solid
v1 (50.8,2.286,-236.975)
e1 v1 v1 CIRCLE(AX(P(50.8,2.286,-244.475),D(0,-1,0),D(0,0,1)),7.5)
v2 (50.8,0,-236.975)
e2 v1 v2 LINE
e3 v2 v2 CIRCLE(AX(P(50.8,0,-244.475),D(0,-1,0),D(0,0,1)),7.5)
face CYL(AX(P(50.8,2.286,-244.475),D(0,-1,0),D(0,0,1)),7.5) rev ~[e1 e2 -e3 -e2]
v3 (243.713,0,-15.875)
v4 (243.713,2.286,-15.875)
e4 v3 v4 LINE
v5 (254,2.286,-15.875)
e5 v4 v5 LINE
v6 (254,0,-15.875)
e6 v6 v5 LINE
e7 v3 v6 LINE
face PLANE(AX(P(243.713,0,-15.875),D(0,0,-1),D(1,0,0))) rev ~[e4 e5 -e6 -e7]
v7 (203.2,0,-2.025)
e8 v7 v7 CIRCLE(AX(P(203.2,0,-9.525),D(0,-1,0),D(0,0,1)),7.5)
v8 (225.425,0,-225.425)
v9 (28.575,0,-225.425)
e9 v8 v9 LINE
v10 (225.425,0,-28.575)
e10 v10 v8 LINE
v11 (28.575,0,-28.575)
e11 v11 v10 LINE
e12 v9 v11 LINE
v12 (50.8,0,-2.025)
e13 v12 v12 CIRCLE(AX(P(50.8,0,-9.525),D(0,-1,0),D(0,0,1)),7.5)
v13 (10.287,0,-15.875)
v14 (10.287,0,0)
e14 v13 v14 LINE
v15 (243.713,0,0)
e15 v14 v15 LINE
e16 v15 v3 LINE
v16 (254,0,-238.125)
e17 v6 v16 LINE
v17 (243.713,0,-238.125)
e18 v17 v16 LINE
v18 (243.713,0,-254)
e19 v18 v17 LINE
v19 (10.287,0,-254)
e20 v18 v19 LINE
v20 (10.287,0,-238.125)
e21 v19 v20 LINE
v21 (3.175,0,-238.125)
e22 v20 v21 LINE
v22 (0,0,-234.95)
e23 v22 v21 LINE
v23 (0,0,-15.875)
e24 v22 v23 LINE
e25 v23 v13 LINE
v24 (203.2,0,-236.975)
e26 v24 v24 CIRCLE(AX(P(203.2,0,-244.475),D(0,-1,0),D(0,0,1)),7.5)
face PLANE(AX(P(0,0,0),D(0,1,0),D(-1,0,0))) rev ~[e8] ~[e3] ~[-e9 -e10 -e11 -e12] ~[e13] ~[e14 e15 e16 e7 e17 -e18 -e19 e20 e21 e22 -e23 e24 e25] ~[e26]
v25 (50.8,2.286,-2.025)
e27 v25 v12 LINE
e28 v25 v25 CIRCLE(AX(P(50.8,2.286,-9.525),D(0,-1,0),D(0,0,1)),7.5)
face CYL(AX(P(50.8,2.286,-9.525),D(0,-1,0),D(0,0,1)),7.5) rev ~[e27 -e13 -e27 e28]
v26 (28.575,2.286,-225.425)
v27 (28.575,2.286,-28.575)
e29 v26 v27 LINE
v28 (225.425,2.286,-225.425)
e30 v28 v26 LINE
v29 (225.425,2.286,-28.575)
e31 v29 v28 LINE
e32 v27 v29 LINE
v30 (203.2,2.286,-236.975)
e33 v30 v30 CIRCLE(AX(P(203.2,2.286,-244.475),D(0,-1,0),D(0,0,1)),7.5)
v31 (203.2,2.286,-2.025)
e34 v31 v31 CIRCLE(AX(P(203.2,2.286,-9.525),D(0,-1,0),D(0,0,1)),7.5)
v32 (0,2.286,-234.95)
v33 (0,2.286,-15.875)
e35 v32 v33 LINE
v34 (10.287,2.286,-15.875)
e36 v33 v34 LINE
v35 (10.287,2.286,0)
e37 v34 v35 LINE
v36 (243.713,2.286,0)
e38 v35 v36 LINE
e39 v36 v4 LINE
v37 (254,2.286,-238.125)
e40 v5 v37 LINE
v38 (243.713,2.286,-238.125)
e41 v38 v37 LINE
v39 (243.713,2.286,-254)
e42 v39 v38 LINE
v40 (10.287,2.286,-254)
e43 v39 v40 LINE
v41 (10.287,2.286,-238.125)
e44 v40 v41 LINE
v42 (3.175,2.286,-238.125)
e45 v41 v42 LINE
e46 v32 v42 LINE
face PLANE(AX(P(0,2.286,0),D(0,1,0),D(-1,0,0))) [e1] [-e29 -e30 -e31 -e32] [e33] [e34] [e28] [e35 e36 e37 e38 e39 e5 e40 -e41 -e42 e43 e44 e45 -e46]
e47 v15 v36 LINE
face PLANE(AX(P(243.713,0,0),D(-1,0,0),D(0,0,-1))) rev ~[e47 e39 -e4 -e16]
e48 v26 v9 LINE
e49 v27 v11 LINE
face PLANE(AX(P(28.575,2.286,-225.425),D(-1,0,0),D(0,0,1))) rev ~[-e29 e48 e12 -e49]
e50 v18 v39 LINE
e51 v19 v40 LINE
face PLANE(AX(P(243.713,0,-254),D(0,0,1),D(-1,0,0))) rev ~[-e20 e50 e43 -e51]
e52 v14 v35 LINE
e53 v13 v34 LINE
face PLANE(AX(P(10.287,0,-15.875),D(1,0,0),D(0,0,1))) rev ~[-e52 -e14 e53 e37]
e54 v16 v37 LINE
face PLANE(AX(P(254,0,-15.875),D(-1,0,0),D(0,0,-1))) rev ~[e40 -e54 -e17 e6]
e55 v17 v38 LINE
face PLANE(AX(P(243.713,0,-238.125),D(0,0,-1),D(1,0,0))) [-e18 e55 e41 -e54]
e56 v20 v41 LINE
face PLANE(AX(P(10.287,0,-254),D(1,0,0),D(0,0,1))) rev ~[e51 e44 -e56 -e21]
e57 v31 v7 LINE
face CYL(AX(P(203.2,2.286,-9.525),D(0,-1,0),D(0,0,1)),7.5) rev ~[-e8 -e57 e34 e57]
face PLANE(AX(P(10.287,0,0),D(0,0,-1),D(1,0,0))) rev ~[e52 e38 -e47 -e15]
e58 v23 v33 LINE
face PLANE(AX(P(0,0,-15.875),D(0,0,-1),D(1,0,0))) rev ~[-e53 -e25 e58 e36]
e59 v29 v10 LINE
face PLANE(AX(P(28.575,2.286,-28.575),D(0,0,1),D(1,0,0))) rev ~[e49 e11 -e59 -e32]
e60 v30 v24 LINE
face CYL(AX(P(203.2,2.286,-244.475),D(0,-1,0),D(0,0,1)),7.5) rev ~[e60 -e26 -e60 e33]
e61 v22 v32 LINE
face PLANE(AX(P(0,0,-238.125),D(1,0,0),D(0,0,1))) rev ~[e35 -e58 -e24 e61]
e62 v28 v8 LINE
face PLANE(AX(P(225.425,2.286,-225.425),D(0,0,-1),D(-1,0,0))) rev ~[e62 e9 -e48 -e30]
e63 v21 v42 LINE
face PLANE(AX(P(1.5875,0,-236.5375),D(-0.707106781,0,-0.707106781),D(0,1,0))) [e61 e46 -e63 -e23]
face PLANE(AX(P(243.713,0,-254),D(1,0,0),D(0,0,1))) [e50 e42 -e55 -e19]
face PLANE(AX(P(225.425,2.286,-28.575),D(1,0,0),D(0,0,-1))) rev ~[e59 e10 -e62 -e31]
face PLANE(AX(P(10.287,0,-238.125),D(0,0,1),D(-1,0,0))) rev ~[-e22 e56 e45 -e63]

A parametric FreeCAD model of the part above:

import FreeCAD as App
import Part
import Sketcher
Q = App.Units.Quantity


def edges_at(feature, points):
    """Names of the edges that pass closest to the given points."""
    edges = feature.Shape.Edges
    near = lambda p: min(range(len(edges)), key=lambda i: edges[i].distToShape(Part.Vertex(*p))[0])
    return sorted({f"Edge{near(p) + 1}" for p in points})

doc = App.newDocument("Part")
body = doc.addObject("PartDesign::Body", "Body")

# Sketch on XZ plane
sketch1 = doc.addObject("Sketcher::SketchObject", "Sketch")
body.addObject(sketch1)
sketch1.AttachmentSupport = (doc.XZ_Plane, [""])
sketch1.MapMode = "FlatFace"
sketch1.addGeometry(Part.LineSegment(App.Vector(10.287, -15.875, 0), App.Vector(10.287, 0, 0)), False)
sketch1.addGeometry(Part.LineSegment(App.Vector(10.287, 0, 0), App.Vector(243.713, 0, 0)), False)
sketch1.addGeometry(Part.LineSegment(App.Vector(243.713, 0, 0), App.Vector(243.713, -15.875, 0)), False)
sketch1.addGeometry(Part.LineSegment(App.Vector(243.713, -15.875, 0), App.Vector(254, -15.875, 0)), False)
sketch1.addGeometry(Part.LineSegment(App.Vector(254, -15.875, 0), App.Vector(254, -238.125, 0)), False)
sketch1.addGeometry(Part.LineSegment(App.Vector(254, -238.125, 0), App.Vector(243.713, -238.125, 0)), False)
sketch1.addGeometry(Part.LineSegment(App.Vector(243.713, -238.125, 0), App.Vector(243.713, -254, 0)), False)
sketch1.addGeometry(Part.LineSegment(App.Vector(243.713, -254, 0), App.Vector(10.287, -254, 0)), False)
sketch1.addGeometry(Part.LineSegment(App.Vector(10.287, -254, 0), App.Vector(10.287, -238.125, 0)), False)
sketch1.addGeometry(Part.LineSegment(App.Vector(10.287, -238.125, 0), App.Vector(0, -238.125, 0)), False)
sketch1.addGeometry(Part.LineSegment(App.Vector(0, -238.125, 0), App.Vector(0, -15.875, 0)), False)
sketch1.addGeometry(Part.LineSegment(App.Vector(0, -15.875, 0), App.Vector(10.287, -15.875, 0)), False)
sketch1.addConstraint(Sketcher.Constraint("Coincident", 0, 2, 1, 1))
sketch1.addConstraint(Sketcher.Constraint("Coincident", 1, 2, 2, 1))
sketch1.addConstraint(Sketcher.Constraint("Coincident", 2, 2, 3, 1))
sketch1.addConstraint(Sketcher.Constraint("Coincident", 3, 2, 4, 1))
sketch1.addConstraint(Sketcher.Constraint("Coincident", 4, 2, 5, 1))
sketch1.addConstraint(Sketcher.Constraint("Coincident", 5, 2, 6, 1))
sketch1.addConstraint(Sketcher.Constraint("Coincident", 6, 2, 7, 1))
sketch1.addConstraint(Sketcher.Constraint("Coincident", 7, 2, 8, 1))
sketch1.addConstraint(Sketcher.Constraint("Coincident", 8, 2, 9, 1))
sketch1.addConstraint(Sketcher.Constraint("Coincident", 9, 2, 10, 1))
sketch1.addConstraint(Sketcher.Constraint("Coincident", 10, 2, 11, 1))
sketch1.addConstraint(Sketcher.Constraint("Coincident", 11, 2, 0, 1))
sketch1.addConstraint(Sketcher.Constraint("Vertical", 0))
sketch1.addConstraint(Sketcher.Constraint("Horizontal", 1))
sketch1.addConstraint(Sketcher.Constraint("Vertical", 2))
sketch1.addConstraint(Sketcher.Constraint("Horizontal", 3))
sketch1.addConstraint(Sketcher.Constraint("Vertical", 4))
sketch1.addConstraint(Sketcher.Constraint("Horizontal", 5))
sketch1.addConstraint(Sketcher.Constraint("Vertical", 6))
sketch1.addConstraint(Sketcher.Constraint("Horizontal", 7))
sketch1.addConstraint(Sketcher.Constraint("Vertical", 8))
sketch1.addConstraint(Sketcher.Constraint("Horizontal", 9))
sketch1.addConstraint(Sketcher.Constraint("Vertical", 10))
sketch1.addConstraint(Sketcher.Constraint("Horizontal", 11))
sketch1.addConstraint(Sketcher.Constraint("PointOnObject", 0, 2, -1))
sketch1.addConstraint(Sketcher.Constraint("PointOnObject", 9, 2, -2))
sketch1.addConstraint(Sketcher.Constraint("Horizontal", 5, 2, 8, 2))
sketch1.addConstraint(Sketcher.Constraint("Horizontal", 3, 2, 10, 2))
sketch1.addConstraint(Sketcher.Constraint("Vertical", 2, 2, 5, 2))
sketch1.addConstraint(Sketcher.Constraint("Vertical", 0, 2, 7, 2))
sketch1.addConstraint(Sketcher.Constraint("Equal", 5, 9))
sketch1.addConstraint(Sketcher.Constraint("Equal", 2, 6))
sketch1.addConstraint(Sketcher.Constraint("DistanceX", -1, 1, 3, 2, Q("10 in")))
sketch1.addConstraint(Sketcher.Constraint("DistanceY", 6, 2, -1, 1, Q("10 in")))
sketch1.addConstraint(Sketcher.Constraint("DistanceX", 3, 1, 3, 2, Q("0.405 in")))
sketch1.addConstraint(Sketcher.Constraint("DistanceY", 0, 1, 0, 2, Q("0.625 in")))
pad1 = doc.addObject("PartDesign::Pad", "Pad")
body.addObject(pad1)
pad1.Profile = sketch1
pad1.Length = Q("0.09 in")
pad1.Reversed = True

# Sketch on XZ plane
sketch2 = doc.addObject("Sketcher::SketchObject", "Sketch001")
body.addObject(sketch2)
sketch2.AttachmentSupport = (doc.XZ_Plane, [""])
sketch2.MapMode = "FlatFace"
sketch2.AttachmentOffset = App.Placement(App.Vector(0, 0, -0.09 * 25.4), App.Rotation())
sketch2.addGeometry(Part.LineSegment(App.Vector(28.575, -225.425, 0), App.Vector(28.575, -28.575, 0)), False)
sketch2.addGeometry(Part.LineSegment(App.Vector(28.575, -28.575, 0), App.Vector(225.425, -28.575, 0)), False)
sketch2.addGeometry(Part.LineSegment(App.Vector(225.425, -28.575, 0), App.Vector(225.425, -225.425, 0)), False)
sketch2.addGeometry(Part.LineSegment(App.Vector(225.425, -225.425, 0), App.Vector(28.575, -225.425, 0)), False)
sketch2.addConstraint(Sketcher.Constraint("Coincident", 0, 2, 1, 1))
sketch2.addConstraint(Sketcher.Constraint("Coincident", 1, 2, 2, 1))
sketch2.addConstraint(Sketcher.Constraint("Coincident", 2, 2, 3, 1))
sketch2.addConstraint(Sketcher.Constraint("Coincident", 3, 2, 0, 1))
sketch2.addConstraint(Sketcher.Constraint("Vertical", 0))
sketch2.addConstraint(Sketcher.Constraint("Horizontal", 1))
sketch2.addConstraint(Sketcher.Constraint("Vertical", 2))
sketch2.addConstraint(Sketcher.Constraint("Horizontal", 3))
sketch2.addConstraint(Sketcher.Constraint("Equal", 3, 0))
sketch2.addConstraint(Sketcher.Constraint("DistanceX", 1, 1, 1, 2, Q("7.75 in")))
sketch2.addConstraint(Sketcher.Constraint("DistanceX", -1, 1, 0, 2, Q("1.125 in")))
sketch2.addConstraint(Sketcher.Constraint("DistanceY", 0, 2, -1, 1, Q("1.125 in")))
pocket1 = doc.addObject("PartDesign::Pocket", "Pocket")
body.addObject(pocket1)
pocket1.Profile = sketch2
pocket1.Type = "ThroughAll"
pocket1.Reversed = True

# Sketch on XZ plane
sketch3 = doc.addObject("Sketcher::SketchObject", "Sketch002")
body.addObject(sketch3)
sketch3.AttachmentSupport = (doc.XZ_Plane, [""])
sketch3.MapMode = "FlatFace"
sketch3.AttachmentOffset = App.Placement(App.Vector(0, 0, -0.09 * 25.4), App.Rotation())
sketch3.addGeometry(Part.Circle(App.Vector(50.8, -9.525, 0), App.Vector(0, 0, 1), 7.5), False)
sketch3.addGeometry(Part.Circle(App.Vector(50.8, -244.475, 0), App.Vector(0, 0, 1), 7.5), False)
sketch3.addGeometry(Part.Circle(App.Vector(203.2, -244.475, 0), App.Vector(0, 0, 1), 7.5), False)
sketch3.addGeometry(Part.Circle(App.Vector(203.2, -9.525, 0), App.Vector(0, 0, 1), 7.5), False)
sketch3.addConstraint(Sketcher.Constraint("Equal", 0, 1))
sketch3.addConstraint(Sketcher.Constraint("Equal", 1, 2))
sketch3.addConstraint(Sketcher.Constraint("Equal", 2, 3))
sketch3.addConstraint(Sketcher.Constraint("Horizontal", 1, 3, 2, 3))
sketch3.addConstraint(Sketcher.Constraint("Horizontal", 0, 3, 3, 3))
sketch3.addConstraint(Sketcher.Constraint("Vertical", 0, 3, 1, 3))
sketch3.addConstraint(Sketcher.Constraint("Vertical", 2, 3, 3, 3))
sketch3.addConstraint(Sketcher.Constraint("DistanceX", -1, 1, 0, 3, Q("2 in")))
sketch3.addConstraint(Sketcher.Constraint("DistanceX", -1, 1, 2, 3, Q("8 in")))
sketch3.addConstraint(Sketcher.Constraint("Diameter", 0, Q("15 mm")))
sketch3.addConstraint(Sketcher.Constraint("DistanceY", 1, 3, 0, 3, Q("9.25 in")))
sketch3.addConstraint(Sketcher.Constraint("DistanceY", 0, 3, -1, 1, Q("0.375 in")))
doc.recompute()
hole = doc.addObject("PartDesign::Hole", "Hole")
body.addObject(hole)
hole.Profile = sketch3
hole.ThreadType = "None"
hole.Diameter = 15
hole.DepthType = "ThroughAll"
hole.Reversed = True
doc.recompute()

chamfer = doc.addObject("PartDesign::Chamfer", "Chamfer")
body.addObject(chamfer)
chamfer.Base = (hole, edges_at(hole, [(0, 1.143, -238.125)]))
chamfer.Size = Q("0.125 in")

doc.recompute()
